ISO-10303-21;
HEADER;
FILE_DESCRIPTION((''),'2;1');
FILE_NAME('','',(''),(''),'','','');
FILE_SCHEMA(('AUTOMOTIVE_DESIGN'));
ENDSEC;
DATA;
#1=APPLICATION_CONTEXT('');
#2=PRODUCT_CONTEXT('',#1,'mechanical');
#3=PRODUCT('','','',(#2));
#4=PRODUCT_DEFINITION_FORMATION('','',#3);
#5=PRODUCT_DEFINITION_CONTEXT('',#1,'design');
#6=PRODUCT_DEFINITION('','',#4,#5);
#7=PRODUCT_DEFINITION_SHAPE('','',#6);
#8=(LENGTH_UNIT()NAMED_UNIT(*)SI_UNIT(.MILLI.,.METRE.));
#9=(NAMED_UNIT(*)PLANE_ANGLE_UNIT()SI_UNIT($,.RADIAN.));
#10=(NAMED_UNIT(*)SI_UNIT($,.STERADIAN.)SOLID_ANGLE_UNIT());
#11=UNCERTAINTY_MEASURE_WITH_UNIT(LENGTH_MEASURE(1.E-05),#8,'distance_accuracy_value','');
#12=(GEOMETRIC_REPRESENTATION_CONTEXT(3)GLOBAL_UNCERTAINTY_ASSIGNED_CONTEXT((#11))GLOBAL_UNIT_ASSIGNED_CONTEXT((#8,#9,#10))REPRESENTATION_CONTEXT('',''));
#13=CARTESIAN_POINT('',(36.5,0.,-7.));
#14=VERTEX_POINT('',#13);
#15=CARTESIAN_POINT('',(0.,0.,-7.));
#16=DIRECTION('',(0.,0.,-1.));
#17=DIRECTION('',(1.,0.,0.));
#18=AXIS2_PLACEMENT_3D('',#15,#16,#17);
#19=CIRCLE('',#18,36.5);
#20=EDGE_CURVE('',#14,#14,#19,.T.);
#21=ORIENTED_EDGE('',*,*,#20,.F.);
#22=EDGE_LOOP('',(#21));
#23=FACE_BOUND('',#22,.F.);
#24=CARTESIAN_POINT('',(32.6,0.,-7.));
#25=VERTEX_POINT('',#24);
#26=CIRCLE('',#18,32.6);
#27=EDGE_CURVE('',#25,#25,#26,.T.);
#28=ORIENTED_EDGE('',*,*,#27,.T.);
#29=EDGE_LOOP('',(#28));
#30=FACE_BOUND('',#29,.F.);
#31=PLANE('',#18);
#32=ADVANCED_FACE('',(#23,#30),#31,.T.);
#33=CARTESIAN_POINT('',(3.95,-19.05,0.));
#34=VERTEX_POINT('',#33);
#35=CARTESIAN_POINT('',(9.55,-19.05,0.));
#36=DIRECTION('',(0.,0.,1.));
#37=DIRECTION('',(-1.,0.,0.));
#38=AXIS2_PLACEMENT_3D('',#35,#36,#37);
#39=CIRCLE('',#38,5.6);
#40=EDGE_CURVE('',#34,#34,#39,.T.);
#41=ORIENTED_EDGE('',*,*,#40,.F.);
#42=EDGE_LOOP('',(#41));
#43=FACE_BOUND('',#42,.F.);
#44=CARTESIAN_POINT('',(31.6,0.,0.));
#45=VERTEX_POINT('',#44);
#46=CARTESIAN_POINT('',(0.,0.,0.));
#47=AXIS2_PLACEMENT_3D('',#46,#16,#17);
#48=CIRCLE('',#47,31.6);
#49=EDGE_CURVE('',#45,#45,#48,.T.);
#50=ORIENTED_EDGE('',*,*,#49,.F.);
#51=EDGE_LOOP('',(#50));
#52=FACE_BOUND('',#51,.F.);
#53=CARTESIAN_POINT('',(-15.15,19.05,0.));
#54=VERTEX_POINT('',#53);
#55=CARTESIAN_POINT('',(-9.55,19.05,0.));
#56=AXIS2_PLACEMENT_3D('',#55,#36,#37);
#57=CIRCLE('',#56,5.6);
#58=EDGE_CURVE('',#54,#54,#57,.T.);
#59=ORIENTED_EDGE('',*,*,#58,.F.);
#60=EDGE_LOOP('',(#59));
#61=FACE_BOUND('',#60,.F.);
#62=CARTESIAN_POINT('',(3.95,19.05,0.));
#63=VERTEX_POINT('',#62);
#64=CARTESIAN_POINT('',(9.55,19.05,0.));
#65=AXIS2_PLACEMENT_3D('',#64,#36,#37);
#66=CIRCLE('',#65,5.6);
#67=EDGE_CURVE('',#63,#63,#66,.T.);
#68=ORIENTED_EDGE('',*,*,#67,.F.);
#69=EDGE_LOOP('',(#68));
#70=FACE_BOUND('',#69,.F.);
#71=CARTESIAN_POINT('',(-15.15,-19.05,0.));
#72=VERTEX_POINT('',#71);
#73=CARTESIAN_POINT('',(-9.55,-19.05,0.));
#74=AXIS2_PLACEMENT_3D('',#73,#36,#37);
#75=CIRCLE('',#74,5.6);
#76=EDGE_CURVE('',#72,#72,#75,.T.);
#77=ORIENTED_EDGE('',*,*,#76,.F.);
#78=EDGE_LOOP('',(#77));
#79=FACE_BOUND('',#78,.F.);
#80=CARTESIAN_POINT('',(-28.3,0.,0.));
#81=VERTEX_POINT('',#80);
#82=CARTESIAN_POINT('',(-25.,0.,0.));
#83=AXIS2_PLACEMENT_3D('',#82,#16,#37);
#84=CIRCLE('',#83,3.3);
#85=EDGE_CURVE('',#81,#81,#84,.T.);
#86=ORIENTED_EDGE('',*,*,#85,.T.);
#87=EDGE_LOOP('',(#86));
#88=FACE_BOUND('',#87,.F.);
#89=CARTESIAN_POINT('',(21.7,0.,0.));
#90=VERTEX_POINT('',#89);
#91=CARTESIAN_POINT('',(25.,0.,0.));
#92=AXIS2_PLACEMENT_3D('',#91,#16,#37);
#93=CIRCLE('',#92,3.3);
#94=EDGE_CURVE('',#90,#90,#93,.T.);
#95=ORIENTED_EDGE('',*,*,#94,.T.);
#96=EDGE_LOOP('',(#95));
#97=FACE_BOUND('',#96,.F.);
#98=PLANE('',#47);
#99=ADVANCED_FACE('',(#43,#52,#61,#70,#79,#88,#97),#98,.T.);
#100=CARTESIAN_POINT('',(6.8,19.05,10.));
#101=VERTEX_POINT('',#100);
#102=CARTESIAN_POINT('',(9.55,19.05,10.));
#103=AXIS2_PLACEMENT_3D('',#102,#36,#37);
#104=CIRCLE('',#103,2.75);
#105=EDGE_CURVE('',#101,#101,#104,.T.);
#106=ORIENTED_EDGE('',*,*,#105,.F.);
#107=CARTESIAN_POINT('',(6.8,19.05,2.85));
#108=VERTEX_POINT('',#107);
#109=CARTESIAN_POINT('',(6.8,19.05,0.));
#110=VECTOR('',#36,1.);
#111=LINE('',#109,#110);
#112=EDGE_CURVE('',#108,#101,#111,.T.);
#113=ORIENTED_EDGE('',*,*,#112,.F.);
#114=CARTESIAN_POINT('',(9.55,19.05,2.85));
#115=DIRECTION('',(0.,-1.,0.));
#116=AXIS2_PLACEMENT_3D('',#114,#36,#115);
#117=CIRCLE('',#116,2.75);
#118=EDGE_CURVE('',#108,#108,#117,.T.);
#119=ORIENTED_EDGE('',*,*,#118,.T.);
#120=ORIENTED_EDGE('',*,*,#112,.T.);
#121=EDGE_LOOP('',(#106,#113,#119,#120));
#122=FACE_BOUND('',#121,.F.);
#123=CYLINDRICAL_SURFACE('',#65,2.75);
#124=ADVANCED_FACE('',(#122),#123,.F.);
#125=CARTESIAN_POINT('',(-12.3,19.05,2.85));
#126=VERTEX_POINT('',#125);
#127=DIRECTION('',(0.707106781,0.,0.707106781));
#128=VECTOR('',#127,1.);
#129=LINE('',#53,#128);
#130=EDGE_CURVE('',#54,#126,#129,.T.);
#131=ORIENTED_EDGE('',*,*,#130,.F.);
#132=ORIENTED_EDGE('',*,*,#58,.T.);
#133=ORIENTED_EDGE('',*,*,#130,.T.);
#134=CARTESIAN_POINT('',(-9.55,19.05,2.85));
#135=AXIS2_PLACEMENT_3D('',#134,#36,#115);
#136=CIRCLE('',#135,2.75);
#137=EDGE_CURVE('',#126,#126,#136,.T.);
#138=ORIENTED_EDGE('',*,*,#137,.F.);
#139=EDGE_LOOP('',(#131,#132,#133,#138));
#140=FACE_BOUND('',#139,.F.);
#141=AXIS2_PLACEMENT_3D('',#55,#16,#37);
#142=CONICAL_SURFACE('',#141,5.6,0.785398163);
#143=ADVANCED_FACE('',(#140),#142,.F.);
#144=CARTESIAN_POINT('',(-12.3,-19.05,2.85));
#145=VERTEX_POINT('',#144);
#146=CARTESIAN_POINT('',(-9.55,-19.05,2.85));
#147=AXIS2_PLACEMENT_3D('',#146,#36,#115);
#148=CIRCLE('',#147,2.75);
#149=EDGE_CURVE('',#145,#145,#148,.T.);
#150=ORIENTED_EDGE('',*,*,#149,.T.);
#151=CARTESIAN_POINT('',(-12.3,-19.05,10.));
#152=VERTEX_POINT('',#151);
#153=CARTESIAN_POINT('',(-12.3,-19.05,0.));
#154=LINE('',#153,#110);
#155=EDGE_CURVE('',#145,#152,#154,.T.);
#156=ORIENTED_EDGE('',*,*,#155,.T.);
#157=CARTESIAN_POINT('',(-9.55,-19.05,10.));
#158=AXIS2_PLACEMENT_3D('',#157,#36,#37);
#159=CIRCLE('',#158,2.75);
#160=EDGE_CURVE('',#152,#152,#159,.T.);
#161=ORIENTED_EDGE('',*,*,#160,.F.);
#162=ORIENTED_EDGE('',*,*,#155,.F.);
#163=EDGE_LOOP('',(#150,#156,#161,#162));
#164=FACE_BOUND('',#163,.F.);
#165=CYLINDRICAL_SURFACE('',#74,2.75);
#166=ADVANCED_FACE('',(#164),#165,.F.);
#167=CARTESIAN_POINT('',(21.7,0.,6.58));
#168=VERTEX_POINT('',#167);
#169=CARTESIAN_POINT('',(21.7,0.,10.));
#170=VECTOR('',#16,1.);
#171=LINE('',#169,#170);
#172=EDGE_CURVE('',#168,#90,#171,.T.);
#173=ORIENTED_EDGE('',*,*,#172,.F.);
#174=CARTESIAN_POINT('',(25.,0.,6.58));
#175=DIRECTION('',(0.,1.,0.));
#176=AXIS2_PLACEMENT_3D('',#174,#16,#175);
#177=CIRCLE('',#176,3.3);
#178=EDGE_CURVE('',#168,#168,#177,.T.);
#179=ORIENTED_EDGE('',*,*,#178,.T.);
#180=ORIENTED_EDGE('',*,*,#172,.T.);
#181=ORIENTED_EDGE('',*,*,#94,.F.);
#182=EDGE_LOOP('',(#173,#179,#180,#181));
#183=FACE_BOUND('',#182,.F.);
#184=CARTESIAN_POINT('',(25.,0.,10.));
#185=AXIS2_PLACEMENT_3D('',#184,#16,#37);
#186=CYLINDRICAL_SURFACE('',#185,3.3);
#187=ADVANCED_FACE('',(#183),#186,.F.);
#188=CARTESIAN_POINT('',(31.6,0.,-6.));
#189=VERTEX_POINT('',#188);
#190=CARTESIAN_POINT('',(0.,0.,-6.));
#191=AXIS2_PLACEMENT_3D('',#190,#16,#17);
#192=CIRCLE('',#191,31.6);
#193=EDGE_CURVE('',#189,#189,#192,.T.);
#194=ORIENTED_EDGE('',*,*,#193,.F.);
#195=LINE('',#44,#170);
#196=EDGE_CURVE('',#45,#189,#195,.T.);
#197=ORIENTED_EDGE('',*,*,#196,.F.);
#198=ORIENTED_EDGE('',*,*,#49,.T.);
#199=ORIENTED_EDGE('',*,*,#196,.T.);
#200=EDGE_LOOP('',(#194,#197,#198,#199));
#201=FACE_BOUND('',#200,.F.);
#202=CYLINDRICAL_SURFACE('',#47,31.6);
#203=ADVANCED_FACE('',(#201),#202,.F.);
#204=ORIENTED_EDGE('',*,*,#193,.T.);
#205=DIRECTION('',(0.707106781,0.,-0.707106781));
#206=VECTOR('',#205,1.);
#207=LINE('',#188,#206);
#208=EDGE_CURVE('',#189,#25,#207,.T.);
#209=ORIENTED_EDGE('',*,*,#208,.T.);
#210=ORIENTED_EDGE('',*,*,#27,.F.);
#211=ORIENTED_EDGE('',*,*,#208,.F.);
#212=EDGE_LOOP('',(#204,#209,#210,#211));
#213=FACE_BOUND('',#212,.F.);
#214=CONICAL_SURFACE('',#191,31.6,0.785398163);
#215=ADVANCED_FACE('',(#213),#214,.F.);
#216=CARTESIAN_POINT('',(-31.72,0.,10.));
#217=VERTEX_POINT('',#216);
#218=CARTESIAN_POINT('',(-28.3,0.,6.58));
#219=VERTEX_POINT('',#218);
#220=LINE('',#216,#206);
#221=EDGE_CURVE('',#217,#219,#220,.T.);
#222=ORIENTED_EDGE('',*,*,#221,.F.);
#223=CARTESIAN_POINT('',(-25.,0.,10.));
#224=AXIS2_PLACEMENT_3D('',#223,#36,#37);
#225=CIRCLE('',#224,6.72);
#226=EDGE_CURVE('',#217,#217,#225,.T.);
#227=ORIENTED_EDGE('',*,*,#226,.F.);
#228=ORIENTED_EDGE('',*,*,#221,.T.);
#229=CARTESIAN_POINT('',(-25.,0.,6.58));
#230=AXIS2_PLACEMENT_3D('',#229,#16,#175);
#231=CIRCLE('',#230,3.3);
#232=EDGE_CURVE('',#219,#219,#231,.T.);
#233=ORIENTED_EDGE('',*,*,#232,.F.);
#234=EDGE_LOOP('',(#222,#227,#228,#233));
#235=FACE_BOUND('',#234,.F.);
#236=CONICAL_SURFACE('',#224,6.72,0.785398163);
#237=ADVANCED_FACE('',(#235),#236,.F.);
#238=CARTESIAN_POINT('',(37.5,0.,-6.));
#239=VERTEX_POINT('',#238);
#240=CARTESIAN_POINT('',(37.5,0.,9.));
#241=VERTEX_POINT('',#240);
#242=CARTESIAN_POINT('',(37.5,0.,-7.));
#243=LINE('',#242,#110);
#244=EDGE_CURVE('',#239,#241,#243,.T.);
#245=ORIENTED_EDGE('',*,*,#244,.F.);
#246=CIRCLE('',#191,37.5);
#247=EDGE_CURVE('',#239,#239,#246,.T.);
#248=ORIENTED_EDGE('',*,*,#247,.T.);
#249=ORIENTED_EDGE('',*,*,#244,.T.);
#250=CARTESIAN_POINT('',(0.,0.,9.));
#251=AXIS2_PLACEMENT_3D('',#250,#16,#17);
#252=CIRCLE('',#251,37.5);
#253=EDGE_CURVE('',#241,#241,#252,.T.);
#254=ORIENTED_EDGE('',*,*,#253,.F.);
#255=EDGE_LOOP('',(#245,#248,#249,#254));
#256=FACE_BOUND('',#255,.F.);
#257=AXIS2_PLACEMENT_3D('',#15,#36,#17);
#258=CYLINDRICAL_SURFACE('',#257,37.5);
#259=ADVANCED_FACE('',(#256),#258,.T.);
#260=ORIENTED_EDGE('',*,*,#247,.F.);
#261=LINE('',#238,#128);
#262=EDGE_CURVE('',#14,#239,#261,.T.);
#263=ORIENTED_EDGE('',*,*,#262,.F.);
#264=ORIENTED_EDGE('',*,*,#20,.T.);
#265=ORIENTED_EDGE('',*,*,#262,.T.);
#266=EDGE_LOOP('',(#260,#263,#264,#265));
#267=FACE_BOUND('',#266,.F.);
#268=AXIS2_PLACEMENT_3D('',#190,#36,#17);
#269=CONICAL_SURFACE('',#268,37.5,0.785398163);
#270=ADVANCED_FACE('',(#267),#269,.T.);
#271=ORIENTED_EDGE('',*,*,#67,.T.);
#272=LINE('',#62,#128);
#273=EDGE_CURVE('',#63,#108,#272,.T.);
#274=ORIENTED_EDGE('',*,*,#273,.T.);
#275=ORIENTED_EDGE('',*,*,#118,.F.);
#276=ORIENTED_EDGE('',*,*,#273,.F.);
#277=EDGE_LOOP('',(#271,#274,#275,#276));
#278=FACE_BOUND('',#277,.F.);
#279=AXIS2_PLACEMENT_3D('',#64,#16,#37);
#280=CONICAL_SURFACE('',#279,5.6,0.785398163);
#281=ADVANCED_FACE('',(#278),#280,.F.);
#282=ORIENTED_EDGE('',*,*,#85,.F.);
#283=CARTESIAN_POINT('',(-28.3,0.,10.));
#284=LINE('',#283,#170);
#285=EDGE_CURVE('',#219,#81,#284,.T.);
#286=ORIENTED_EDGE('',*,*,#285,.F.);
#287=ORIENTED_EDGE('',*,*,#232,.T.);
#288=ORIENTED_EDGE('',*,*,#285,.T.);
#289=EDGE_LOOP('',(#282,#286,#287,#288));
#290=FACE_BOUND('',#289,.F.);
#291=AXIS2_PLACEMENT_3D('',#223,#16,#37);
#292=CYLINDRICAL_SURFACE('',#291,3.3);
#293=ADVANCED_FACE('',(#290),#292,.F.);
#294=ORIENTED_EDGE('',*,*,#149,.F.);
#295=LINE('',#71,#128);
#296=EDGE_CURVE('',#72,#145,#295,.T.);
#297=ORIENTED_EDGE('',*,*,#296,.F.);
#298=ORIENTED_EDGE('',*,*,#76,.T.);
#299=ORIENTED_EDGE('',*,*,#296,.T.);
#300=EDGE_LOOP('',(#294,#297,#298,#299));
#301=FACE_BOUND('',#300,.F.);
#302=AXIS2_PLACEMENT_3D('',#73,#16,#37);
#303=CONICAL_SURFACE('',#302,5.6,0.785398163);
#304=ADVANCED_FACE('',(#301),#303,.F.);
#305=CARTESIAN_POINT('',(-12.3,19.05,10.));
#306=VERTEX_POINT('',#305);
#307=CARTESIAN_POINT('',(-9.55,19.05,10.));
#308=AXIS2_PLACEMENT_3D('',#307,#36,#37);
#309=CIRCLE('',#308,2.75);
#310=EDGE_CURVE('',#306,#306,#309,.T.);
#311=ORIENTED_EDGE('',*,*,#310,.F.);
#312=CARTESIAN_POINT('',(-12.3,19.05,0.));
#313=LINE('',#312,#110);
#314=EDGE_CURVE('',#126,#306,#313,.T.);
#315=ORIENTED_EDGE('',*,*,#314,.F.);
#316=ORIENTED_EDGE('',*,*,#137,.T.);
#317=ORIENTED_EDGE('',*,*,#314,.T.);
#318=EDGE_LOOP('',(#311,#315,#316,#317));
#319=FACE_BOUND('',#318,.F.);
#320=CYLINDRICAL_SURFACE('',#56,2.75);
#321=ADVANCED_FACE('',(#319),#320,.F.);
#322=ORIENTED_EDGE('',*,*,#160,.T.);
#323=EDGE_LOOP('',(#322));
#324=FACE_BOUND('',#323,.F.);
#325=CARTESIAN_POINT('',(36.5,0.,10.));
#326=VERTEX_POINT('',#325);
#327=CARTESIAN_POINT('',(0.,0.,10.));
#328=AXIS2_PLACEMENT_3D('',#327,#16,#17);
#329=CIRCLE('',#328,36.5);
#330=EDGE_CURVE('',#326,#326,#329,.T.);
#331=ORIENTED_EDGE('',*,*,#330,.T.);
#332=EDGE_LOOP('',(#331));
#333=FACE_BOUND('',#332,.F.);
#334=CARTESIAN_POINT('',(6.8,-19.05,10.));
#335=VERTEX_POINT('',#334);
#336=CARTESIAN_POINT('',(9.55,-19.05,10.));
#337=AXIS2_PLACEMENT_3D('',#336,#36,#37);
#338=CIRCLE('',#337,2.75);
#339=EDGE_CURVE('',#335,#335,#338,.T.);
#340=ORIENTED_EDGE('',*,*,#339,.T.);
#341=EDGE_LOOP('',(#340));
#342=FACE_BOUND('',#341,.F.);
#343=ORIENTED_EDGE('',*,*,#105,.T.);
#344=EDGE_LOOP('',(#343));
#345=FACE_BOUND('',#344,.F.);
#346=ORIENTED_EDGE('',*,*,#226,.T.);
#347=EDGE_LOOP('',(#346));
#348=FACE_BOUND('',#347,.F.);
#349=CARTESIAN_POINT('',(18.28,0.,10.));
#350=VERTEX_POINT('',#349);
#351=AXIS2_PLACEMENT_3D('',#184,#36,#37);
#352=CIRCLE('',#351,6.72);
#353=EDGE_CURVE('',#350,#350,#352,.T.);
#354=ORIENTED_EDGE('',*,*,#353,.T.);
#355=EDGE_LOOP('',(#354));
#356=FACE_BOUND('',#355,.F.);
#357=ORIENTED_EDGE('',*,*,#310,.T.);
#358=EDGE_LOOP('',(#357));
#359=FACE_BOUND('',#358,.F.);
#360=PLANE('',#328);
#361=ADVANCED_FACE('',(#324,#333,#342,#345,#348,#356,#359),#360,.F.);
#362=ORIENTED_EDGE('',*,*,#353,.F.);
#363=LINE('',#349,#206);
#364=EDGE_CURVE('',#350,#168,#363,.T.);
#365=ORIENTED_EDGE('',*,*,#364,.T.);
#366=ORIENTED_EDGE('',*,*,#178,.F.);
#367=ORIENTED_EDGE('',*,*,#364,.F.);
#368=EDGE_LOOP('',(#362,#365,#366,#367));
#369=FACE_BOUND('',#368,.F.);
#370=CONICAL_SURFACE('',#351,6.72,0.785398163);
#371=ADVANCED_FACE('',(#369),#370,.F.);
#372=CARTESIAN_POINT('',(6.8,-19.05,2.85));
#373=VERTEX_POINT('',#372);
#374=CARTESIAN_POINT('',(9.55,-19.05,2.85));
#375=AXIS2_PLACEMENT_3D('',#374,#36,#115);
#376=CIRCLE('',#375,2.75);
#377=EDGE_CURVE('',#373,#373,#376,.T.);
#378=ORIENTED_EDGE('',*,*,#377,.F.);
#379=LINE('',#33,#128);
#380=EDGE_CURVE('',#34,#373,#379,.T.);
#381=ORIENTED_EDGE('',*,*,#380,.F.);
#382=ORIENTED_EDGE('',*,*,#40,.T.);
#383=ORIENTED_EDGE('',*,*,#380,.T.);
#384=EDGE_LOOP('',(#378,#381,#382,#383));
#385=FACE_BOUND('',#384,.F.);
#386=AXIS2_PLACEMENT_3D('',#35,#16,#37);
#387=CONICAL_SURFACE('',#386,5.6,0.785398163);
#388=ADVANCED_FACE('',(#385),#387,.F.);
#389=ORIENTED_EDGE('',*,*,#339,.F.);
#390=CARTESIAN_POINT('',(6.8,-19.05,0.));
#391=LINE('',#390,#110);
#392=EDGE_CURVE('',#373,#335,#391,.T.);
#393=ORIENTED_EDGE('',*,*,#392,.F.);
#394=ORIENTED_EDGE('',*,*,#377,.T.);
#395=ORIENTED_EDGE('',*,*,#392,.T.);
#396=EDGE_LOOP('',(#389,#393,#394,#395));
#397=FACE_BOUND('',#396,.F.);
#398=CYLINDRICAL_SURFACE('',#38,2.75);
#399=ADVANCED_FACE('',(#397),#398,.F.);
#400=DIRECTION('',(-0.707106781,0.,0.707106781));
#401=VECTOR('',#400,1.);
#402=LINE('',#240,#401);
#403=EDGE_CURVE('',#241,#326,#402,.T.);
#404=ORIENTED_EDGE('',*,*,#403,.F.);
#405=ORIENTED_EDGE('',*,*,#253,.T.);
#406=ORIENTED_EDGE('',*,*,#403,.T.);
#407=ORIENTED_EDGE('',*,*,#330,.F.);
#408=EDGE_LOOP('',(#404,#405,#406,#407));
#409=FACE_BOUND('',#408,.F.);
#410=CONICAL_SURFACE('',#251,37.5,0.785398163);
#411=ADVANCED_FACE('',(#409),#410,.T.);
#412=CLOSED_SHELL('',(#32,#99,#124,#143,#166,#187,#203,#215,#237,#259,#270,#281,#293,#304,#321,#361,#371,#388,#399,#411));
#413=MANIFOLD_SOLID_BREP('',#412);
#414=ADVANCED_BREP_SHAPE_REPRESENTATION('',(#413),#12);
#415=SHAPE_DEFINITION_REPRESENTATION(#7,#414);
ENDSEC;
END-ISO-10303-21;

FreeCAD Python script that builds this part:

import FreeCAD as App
import Part
import Sketcher
Q = App.Units.Quantity


def edges_at(feature, points):
    """Names of the edges that pass closest to the given points."""
    edges = feature.Shape.Edges
    near = lambda p: min(range(len(edges)), key=lambda i: edges[i].distToShape(Part.Vertex(*p))[0])
    return sorted({f"Edge{near(p) + 1}" for p in points})

doc = App.newDocument("Part")
body = doc.addObject("PartDesign::Body", "Body")

sketch1 = body.newObject("Sketcher::SketchObject", "Sketch")
sketch1.AttachmentSupport = (doc.getObject("XZ_Plane"), [""])
sketch1.MapMode = "FlatFace"
sketch1.addGeometry([
    Part.LineSegment(App.Vector(0, 10, 0), App.Vector(0, 0, 0)),
    Part.LineSegment(App.Vector(0, 0, 0), App.Vector(32, 0, 0)),
    Part.LineSegment(App.Vector(32, 0, 0), App.Vector(32, -7, 0)),
    Part.LineSegment(App.Vector(32, -7, 0), App.Vector(38, -7, 0)),
    Part.LineSegment(App.Vector(38, -7, 0), App.Vector(38, 10, 0)),
    Part.LineSegment(App.Vector(38, 10, 0), App.Vector(0, 10, 0)),
], False)
sketch1.addConstraint([
    Sketcher.Constraint("Coincident", 0, 2, 1, 1),
    Sketcher.Constraint("Coincident", 1, 2, 2, 1),
    Sketcher.Constraint("Coincident", 2, 2, 3, 1),
    Sketcher.Constraint("Coincident", 3, 2, 4, 1),
    Sketcher.Constraint("Coincident", 4, 2, 5, 1),
    Sketcher.Constraint("Coincident", 5, 2, 0, 1),
    Sketcher.Constraint("Vertical", 0),
    Sketcher.Constraint("Horizontal", 1),
    Sketcher.Constraint("Vertical", 2),
    Sketcher.Constraint("Horizontal", 3),
    Sketcher.Constraint("Vertical", 4),
    Sketcher.Constraint("Horizontal", 5),
    Sketcher.Constraint("Coincident", 0, 2, -1, 1),
    Sketcher.Constraint("DistanceY", 0, 2, 0, 1, Q("10 mm")),
    Sketcher.Constraint("DistanceY", 2, 2, 2, 1, Q("7 mm")),
    Sketcher.Constraint("DistanceX", 1, 1, 1, 2, Q("31.6 mm")),
    Sketcher.Constraint("DistanceX", 3, 1, 3, 2, Q("5.9 mm")),
])
revolution = body.newObject("PartDesign::Revolution", "Revolution")
revolution.Profile = sketch1
revolution.ReferenceAxis = (sketch1, ["V_Axis"])
revolution.Angle = 360
doc.recompute()

chamfer = body.newObject("PartDesign::Chamfer", "Chamfer")
chamfer.Base = (revolution, edges_at(revolution, [(-31.6, 0, -7), (-37.5, 0, -7), (-37.5, 0, 10)]))
chamfer.Size = 1

sketch2 = body.newObject("Sketcher::SketchObject", "Sketch001")
sketch2.AttachmentSupport = (doc.getObject("XY_Plane"), [""])
sketch2.MapMode = "FlatFace"
sketch2.AttachmentOffset = App.Placement(App.Vector(0, 0, 10), App.Rotation())
sketch2.addGeometry([
    Part.Circle(App.Vector(-25, 0, 0), App.Vector(0, 0, 1), 3.3),
    Part.Circle(App.Vector(25, 0, 0), App.Vector(0, 0, 1), 3.3),
], False)
sketch2.addConstraint([
    Sketcher.Constraint("Equal", 0, 1),
    Sketcher.Constraint("Symmetric", 0, 3, 1, 3, -1, 1),
    Sketcher.Constraint("PointOnObject", 0, 3, -1),
    Sketcher.Constraint("Diameter", 0, Q("6.6 mm")),
    Sketcher.Constraint("DistanceX", 0, 3, -1, 1, Q("25 mm")),
])
doc.recompute()
hole = body.newObject("PartDesign::Hole", "Hole")
hole.Profile = sketch2
hole.ThreadType = "None"
hole.Diameter = 6.6
hole.DepthType = "ThroughAll"
hole.HoleCutType = "Countersink"
hole.HoleCutDiameter = 13.44
hole.HoleCutCountersinkAngle = 90

sketch3 = body.newObject("Sketcher::SketchObject", "Sketch002")
sketch3.AttachmentSupport = (doc.getObject("XY_Plane"), [""])
sketch3.MapMode = "FlatFace"
sketch3.addGeometry([
    Part.Circle(App.Vector(-9.6, -19.1, 0), App.Vector(0, 0, 1), 2.8),
    Part.Circle(App.Vector(9.6, -19.1, 0), App.Vector(0, 0, 1), 2.8),
    Part.Circle(App.Vector(9.6, 19.1, 0), App.Vector(0, 0, 1), 2.8),
    Part.Circle(App.Vector(-9.6, 19.1, 0), App.Vector(0, 0, 1), 2.8),
], False)
sketch3.addConstraint([
    Sketcher.Constraint("Equal", 0, 1),
    Sketcher.Constraint("Equal", 1, 2),
    Sketcher.Constraint("Equal", 2, 3),
    Sketcher.Constraint("Symmetric", 0, 3, 2, 3, -1, 1),
    Sketcher.Constraint("Symmetric", 1, 3, 3, 3, -1, 1),
    Sketcher.Constraint("Symmetric", 0, 3, 1, 3, -2),
    Sketcher.Constraint("Diameter", 0, Q("5.5 mm")),
    Sketcher.Constraint("DistanceX", 0, 3, 1, 3, Q("19.1 mm")),
    Sketcher.Constraint("DistanceY", 1, 3, 2, 3, Q("38.1 mm")),
])
doc.recompute()
hole2 = body.newObject("PartDesign::Hole", "Hole001")
hole2.Profile = sketch3
hole2.ThreadType = "None"
hole2.Diameter = 5.5
hole2.DepthType = "ThroughAll"
hole2.HoleCutType = "Countersink"
hole2.HoleCutDiameter = 11.2
hole2.HoleCutCountersinkAngle = 90
hole2.Reversed = True

doc.recompute()
